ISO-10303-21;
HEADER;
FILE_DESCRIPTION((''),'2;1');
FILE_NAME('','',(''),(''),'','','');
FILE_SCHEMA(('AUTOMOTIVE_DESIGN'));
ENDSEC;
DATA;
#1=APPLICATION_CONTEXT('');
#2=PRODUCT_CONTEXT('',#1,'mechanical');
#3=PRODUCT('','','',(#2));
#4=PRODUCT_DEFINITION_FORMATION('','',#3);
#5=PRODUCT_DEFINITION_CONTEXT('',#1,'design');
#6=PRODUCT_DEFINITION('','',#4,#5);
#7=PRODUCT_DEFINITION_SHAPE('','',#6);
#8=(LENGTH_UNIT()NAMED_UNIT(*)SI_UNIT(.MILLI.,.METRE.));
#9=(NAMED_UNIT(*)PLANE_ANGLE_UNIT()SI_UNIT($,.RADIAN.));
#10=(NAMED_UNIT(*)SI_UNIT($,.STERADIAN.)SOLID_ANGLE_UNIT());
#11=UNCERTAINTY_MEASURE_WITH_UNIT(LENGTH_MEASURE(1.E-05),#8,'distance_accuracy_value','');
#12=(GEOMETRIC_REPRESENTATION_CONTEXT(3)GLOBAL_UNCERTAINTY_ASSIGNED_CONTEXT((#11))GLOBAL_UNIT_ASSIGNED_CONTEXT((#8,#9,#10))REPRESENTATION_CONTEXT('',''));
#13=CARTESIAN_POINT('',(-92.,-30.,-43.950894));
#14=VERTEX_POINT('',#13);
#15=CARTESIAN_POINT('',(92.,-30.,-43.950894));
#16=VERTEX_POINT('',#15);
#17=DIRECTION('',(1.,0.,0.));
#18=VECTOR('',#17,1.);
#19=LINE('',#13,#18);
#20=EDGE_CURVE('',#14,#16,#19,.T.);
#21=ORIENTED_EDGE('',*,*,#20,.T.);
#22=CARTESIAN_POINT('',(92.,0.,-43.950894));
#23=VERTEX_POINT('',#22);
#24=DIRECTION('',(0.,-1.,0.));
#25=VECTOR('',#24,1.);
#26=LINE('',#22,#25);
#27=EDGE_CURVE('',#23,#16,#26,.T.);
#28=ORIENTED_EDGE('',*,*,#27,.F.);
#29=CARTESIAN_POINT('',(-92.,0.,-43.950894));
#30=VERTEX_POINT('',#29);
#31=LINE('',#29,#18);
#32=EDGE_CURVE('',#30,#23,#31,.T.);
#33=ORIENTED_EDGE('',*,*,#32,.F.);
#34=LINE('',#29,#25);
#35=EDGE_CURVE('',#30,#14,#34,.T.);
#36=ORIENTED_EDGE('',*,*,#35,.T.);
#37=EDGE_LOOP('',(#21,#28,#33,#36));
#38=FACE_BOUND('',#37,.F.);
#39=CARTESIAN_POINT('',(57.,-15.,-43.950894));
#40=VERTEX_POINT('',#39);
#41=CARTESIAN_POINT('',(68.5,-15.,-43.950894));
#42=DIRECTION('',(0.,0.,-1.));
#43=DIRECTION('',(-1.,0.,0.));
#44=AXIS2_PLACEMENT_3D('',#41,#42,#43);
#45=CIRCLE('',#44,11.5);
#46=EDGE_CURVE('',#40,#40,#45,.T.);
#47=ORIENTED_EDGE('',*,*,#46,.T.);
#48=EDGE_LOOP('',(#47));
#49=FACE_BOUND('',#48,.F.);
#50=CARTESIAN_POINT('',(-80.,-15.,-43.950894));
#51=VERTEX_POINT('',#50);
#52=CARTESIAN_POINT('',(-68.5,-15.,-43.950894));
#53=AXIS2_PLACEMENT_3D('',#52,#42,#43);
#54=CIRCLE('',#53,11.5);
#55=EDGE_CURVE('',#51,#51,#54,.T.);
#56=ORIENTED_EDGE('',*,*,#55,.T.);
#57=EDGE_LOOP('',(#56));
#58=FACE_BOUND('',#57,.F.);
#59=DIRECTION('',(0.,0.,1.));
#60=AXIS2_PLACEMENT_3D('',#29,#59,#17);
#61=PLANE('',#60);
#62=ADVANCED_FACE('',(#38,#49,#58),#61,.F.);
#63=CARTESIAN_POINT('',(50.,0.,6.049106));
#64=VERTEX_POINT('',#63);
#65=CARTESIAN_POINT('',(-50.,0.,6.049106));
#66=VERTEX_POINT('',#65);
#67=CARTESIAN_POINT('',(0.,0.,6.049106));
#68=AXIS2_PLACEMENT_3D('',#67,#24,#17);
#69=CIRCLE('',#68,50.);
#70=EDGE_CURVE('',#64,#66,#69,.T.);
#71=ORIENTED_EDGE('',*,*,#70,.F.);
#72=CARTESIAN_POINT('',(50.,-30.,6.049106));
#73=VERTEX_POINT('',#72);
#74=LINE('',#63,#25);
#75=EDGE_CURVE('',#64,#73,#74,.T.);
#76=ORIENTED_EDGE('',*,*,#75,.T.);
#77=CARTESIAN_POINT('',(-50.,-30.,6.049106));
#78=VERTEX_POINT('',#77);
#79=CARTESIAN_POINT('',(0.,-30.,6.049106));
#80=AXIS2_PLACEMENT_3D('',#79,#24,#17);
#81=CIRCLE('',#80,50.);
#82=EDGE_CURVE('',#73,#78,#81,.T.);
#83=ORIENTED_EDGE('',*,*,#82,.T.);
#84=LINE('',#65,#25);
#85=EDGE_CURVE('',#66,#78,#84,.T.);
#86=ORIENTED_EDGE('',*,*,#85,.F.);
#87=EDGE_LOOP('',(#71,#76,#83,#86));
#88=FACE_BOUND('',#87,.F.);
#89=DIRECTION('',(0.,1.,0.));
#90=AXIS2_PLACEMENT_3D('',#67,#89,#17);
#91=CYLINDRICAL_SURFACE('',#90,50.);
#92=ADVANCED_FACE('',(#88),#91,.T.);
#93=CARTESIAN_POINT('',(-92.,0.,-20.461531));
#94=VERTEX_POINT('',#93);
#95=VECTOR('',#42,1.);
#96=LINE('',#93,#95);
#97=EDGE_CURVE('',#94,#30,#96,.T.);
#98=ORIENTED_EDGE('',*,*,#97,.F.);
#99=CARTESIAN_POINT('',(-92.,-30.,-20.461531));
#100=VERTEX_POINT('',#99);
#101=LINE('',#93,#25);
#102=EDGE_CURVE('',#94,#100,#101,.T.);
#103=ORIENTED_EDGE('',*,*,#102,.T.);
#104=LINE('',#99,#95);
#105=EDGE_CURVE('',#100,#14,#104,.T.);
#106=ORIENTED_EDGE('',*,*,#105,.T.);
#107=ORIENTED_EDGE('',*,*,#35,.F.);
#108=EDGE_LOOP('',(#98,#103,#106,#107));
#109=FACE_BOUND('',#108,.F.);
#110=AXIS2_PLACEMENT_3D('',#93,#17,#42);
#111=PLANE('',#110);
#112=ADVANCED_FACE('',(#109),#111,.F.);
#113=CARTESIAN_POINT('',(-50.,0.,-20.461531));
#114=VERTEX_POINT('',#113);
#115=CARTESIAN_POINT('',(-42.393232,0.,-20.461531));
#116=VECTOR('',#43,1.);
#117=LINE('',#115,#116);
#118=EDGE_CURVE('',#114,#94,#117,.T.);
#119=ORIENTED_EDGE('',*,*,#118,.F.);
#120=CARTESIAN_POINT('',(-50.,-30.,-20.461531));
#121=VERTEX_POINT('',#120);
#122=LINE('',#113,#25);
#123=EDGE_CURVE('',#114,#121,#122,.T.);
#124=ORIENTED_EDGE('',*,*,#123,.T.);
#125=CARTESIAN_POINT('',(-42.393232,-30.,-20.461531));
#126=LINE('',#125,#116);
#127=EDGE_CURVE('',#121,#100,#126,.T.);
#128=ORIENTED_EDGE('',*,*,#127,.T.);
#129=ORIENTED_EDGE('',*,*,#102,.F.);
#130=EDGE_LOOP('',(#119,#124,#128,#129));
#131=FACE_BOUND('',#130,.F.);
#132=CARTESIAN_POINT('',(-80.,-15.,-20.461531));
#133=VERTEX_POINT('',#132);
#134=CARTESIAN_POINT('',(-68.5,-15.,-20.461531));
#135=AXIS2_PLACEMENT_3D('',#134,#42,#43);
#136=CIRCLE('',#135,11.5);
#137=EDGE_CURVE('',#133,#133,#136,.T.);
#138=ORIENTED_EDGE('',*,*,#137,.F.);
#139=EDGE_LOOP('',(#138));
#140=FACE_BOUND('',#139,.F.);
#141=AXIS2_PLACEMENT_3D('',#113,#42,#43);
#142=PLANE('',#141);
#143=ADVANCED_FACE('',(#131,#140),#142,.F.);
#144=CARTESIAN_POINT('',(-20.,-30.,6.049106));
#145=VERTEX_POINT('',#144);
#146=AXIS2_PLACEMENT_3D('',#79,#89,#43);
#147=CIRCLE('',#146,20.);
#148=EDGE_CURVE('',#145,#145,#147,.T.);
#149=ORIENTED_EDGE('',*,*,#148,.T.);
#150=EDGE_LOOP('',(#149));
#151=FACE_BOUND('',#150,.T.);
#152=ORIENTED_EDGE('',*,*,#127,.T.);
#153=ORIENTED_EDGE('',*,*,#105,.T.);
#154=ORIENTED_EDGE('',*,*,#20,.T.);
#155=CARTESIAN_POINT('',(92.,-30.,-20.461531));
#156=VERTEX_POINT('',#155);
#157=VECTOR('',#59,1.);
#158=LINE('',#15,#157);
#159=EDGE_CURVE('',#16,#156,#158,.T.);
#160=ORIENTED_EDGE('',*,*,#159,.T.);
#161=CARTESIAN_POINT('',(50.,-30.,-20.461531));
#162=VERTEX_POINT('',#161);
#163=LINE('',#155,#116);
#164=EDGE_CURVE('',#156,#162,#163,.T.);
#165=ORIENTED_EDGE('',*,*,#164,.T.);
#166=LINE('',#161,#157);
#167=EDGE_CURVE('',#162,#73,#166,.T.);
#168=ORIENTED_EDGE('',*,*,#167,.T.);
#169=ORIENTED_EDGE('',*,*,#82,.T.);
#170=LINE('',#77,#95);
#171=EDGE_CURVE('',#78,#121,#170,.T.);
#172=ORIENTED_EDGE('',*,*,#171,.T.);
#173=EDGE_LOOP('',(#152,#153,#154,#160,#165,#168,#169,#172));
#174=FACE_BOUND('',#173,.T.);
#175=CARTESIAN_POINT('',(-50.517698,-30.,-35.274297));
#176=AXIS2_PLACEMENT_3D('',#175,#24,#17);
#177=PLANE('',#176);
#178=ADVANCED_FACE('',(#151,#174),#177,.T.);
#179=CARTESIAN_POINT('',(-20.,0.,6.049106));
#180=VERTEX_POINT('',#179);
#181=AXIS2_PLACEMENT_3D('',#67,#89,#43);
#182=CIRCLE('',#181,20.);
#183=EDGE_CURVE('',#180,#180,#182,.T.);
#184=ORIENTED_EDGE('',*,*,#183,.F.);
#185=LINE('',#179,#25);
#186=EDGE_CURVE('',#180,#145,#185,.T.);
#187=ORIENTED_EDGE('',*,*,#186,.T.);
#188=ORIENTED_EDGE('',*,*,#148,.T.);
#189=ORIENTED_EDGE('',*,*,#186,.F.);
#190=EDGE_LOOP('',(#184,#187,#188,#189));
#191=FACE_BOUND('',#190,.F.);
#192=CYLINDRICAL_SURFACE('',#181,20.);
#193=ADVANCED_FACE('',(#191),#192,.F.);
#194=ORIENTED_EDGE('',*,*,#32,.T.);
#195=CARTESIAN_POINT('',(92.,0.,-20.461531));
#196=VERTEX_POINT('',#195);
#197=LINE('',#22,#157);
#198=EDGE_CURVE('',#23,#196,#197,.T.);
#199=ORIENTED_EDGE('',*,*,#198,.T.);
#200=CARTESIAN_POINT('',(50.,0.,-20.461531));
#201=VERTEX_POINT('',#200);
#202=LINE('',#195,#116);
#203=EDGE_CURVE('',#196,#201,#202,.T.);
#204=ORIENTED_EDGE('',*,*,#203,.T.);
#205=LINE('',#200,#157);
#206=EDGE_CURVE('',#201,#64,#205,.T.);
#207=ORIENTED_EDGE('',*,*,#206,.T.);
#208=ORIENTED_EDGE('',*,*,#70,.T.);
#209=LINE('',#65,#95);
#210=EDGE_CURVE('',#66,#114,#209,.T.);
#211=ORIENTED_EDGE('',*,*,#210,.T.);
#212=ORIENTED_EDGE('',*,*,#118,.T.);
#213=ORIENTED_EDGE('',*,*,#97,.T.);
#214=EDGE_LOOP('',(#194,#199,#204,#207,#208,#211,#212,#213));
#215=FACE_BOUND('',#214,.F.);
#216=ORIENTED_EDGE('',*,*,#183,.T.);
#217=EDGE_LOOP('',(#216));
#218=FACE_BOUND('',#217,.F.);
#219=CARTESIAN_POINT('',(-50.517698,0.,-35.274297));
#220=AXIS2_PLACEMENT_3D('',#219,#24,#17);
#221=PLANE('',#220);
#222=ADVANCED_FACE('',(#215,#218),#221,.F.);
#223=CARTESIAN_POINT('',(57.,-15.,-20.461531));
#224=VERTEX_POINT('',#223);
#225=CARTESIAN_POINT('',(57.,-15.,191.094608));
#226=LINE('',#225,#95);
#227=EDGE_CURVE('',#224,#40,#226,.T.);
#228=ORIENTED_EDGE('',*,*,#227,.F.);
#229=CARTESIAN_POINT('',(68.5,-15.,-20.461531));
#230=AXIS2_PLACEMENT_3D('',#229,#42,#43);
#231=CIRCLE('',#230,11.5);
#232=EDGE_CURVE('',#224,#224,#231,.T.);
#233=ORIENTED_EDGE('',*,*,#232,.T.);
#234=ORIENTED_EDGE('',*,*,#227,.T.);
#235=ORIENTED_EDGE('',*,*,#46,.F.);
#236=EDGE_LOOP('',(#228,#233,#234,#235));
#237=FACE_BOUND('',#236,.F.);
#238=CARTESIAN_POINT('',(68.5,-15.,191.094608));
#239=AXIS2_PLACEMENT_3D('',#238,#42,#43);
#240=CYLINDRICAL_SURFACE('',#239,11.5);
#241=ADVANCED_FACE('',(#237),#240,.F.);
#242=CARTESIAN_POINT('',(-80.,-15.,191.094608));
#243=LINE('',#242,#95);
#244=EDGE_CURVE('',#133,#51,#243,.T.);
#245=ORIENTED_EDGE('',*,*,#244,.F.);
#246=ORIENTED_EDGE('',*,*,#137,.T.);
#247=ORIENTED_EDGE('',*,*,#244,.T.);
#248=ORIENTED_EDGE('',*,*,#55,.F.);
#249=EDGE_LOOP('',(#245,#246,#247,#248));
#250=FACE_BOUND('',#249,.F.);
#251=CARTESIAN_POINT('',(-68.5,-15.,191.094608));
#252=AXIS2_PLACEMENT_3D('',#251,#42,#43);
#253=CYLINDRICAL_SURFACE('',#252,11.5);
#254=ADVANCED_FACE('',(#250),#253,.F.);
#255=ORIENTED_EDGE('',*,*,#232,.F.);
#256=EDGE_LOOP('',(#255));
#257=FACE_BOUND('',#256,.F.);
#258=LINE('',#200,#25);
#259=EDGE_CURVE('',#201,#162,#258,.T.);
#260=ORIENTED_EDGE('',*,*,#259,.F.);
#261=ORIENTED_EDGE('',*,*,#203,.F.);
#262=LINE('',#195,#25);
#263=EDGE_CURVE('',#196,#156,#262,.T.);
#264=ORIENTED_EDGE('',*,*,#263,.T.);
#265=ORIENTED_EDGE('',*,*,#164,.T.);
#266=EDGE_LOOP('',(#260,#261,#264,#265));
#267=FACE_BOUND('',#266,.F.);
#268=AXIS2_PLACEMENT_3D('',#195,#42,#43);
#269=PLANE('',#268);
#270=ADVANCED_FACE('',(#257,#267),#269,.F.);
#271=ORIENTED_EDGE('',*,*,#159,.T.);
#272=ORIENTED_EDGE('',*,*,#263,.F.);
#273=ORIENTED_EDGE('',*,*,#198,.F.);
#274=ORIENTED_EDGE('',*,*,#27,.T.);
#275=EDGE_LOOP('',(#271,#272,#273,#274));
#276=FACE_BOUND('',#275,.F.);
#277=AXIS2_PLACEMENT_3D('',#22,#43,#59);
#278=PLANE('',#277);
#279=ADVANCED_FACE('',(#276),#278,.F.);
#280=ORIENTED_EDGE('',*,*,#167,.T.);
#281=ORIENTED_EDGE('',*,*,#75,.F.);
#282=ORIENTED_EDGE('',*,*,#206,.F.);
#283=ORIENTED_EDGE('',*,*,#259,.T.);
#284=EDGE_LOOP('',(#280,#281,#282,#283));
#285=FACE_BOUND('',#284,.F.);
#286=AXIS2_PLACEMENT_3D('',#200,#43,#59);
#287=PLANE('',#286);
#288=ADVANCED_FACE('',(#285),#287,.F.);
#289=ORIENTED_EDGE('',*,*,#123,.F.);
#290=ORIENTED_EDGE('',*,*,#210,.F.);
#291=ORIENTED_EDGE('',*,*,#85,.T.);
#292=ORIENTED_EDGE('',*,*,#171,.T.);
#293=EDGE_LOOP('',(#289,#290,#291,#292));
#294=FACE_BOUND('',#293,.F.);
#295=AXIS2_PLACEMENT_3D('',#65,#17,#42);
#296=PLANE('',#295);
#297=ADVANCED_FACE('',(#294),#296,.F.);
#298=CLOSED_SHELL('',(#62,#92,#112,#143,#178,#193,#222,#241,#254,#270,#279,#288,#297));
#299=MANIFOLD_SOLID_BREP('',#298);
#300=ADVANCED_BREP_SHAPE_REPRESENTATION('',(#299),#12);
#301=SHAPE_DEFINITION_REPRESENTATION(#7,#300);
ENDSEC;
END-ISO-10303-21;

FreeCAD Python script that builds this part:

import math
import FreeCAD as App
import Part
import Sketcher
Q = App.Units.Quantity

doc = App.newDocument("Part")
body = doc.addObject("PartDesign::Body", "Body")

# Sketch on XZ plane
sketch1 = body.newObject("Sketcher::SketchObject", "Sketch")
sketch1.AttachmentSupport = (doc.getObject("XZ_Plane"), [""])
sketch1.MapMode = "FlatFace"
sketch1.addGeometry([
    Part.LineSegment(App.Vector(-92, -20, 0), App.Vector(-92, -44, 0)),  # 0
    Part.LineSegment(App.Vector(-92, -44, 0), App.Vector(92, -44, 0)),  # 1
    Part.LineSegment(App.Vector(92, -44, 0), App.Vector(92, -20, 0)),  # 2
    Part.LineSegment(App.Vector(92, -20, 0), App.Vector(50, -20, 0)),  # 3
    Part.LineSegment(App.Vector(50, -20, 0), App.Vector(50, 6, 0)),  # 4
    Part.ArcOfCircle(Part.Circle(App.Vector(0, 6, 0), App.Vector(0, 0, 1), 50), math.radians(0), math.radians(180)),  # 5
    Part.LineSegment(App.Vector(-50, 6, 0), App.Vector(-50, -20, 0)),  # 6
    Part.LineSegment(App.Vector(-50, -20, 0), App.Vector(-92, -20, 0)),  # 7
    Part.Circle(App.Vector(0, 6, 0), App.Vector(0, 0, 1), 20),  # 8
], False)
sketch1.addConstraint([
    Sketcher.Constraint("Coincident", 0, 2, 1, 1),
    Sketcher.Constraint("Coincident", 1, 2, 2, 1),
    Sketcher.Constraint("Coincident", 2, 2, 3, 1),
    Sketcher.Constraint("Coincident", 3, 2, 4, 1),
    Sketcher.Constraint("Tangent", 4, 2, 5, 1),
    Sketcher.Constraint("Tangent", 5, 2, 6, 1),
    Sketcher.Constraint("Coincident", 6, 2, 7, 1),
    Sketcher.Constraint("Coincident", 7, 2, 0, 1),
    Sketcher.Constraint("Vertical", 0),
    Sketcher.Constraint("Horizontal", 1),
    Sketcher.Constraint("Vertical", 2),
    Sketcher.Constraint("Horizontal", 3),
    Sketcher.Constraint("Vertical", 4),
    Sketcher.Constraint("Vertical", 6),
    Sketcher.Constraint("Horizontal", 7),
    Sketcher.Constraint("Coincident", 8, 3, 5, 3),
    Sketcher.Constraint("Symmetric", 3, 2, 6, 2, -2),
    Sketcher.Constraint("Equal", 3, 7),
    Sketcher.Constraint("Diameter", 8, Q("40 mm")),
    Sketcher.Constraint("Radius", 5, Q("50 mm")),
    Sketcher.Constraint("DistanceX", 1, 1, 1, 2, Q("184 mm")),
    Sketcher.Constraint("DistanceY", 0, 2, 5, 3, Q("50 mm")),
    Sketcher.Constraint("DistanceY", 0, 2, 0, 1, Q("23.489363 mm")),
    Sketcher.Constraint("DistanceY", 2, 2, -1, 1, Q("20.461531 mm")),
])
pad1 = body.newObject("PartDesign::Pad", "Pad")
pad1.Profile = sketch1
pad1.Length = 30

# Sketch on XY plane
sketch2 = body.newObject("Sketcher::SketchObject", "Sketch001")
sketch2.AttachmentSupport = (doc.getObject("XY_Plane"), [""])
sketch2.MapMode = "FlatFace"
sketch2.AttachmentOffset = App.Placement(App.Vector(0, 0, -20.461531), App.Rotation())
sketch2.addGeometry([
    Part.Circle(App.Vector(-68, -15, 0), App.Vector(0, 0, 1), 12),
    Part.Circle(App.Vector(68, -15, 0), App.Vector(0, 0, 1), 12),
], False)
sketch2.addConstraint([
    Sketcher.Constraint("Equal", 0, 1),
    Sketcher.Constraint("Symmetric", 0, 3, 1, 3, -2),
    Sketcher.Constraint("Diameter", 0, Q("23 mm")),
    Sketcher.Constraint("DistanceY", 0, 3, -1, 1, Q("15 mm")),
    Sketcher.Constraint("DistanceX", 0, 3, 1, 3, Q("137 mm")),
])
doc.recompute()
hole = body.newObject("PartDesign::Hole", "Hole")
hole.Profile = sketch2
hole.ThreadType = "None"
hole.Diameter = 23
hole.DepthType = "ThroughAll"

doc.recompute()
